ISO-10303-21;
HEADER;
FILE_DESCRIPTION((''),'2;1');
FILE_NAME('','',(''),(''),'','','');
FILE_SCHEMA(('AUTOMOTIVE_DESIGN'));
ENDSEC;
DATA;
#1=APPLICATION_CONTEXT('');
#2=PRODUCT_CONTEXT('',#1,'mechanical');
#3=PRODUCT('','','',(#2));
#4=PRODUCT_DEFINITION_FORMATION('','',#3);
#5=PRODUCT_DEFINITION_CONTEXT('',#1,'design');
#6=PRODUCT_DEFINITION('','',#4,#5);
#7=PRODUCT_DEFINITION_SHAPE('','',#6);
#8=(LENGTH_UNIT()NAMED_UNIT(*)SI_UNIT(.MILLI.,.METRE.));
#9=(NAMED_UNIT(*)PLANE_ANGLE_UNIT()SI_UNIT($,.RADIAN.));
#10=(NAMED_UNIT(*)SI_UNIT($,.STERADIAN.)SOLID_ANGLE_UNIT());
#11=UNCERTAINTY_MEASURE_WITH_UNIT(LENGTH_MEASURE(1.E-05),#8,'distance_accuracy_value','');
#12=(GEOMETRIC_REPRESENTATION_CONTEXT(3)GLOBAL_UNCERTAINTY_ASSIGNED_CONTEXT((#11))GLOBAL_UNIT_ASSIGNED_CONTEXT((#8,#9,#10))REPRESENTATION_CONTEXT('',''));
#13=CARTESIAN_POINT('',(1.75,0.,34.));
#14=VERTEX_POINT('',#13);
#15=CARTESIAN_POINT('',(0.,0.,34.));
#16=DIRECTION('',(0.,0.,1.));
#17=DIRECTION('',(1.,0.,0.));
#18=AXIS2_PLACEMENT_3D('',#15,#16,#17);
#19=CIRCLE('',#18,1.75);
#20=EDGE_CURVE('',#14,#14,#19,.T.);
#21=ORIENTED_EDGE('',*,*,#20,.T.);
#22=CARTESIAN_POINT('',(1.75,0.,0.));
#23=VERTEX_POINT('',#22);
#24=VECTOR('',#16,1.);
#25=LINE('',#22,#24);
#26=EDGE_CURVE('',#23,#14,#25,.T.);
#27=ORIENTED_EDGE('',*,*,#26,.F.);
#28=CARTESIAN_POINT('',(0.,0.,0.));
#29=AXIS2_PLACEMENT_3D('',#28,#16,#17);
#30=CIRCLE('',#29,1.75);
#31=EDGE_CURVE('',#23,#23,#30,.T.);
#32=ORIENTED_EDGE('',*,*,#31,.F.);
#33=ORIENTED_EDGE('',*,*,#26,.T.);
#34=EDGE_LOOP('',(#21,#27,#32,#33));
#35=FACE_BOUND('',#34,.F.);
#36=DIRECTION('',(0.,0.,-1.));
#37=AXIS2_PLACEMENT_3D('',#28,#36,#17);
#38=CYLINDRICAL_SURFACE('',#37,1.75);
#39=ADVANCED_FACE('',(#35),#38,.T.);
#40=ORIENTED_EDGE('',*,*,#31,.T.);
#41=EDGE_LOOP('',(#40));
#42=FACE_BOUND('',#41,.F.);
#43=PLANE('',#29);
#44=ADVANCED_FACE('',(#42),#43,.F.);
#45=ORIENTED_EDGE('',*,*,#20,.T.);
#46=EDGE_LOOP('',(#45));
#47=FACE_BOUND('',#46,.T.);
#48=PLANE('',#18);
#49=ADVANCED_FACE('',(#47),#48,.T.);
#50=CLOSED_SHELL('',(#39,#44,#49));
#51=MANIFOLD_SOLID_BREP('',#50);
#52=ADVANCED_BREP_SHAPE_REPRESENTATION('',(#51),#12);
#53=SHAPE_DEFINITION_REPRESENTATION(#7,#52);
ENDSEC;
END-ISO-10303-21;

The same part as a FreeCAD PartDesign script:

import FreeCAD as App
import Part
import Sketcher
from FreeCAD import Vector
Q = App.Units.Quantity

doc = App.newDocument("Part")
body = doc.addObject("PartDesign::Body", "Body")

sketch1 = body.newObject("Sketcher::SketchObject", "Sketch")
sketch1.AttachmentSupport = (doc.getObject("XY_Plane"), [""])
sketch1.MapMode = "FlatFace"
sketch1.addGeometry(Part.Circle(Vector(0, 0, 0), Vector(0, 0, 1), 1.8), False)
sketch1.addConstraint([
    Sketcher.Constraint("Coincident", 0, 3, -1, 1),
    Sketcher.Constraint("Diameter", 0, Q("3.5 mm")),
])
pad1 = body.newObject("PartDesign::Pad", "Pad")
pad1.Profile = sketch1
pad1.Length = 34

doc.recompute()
